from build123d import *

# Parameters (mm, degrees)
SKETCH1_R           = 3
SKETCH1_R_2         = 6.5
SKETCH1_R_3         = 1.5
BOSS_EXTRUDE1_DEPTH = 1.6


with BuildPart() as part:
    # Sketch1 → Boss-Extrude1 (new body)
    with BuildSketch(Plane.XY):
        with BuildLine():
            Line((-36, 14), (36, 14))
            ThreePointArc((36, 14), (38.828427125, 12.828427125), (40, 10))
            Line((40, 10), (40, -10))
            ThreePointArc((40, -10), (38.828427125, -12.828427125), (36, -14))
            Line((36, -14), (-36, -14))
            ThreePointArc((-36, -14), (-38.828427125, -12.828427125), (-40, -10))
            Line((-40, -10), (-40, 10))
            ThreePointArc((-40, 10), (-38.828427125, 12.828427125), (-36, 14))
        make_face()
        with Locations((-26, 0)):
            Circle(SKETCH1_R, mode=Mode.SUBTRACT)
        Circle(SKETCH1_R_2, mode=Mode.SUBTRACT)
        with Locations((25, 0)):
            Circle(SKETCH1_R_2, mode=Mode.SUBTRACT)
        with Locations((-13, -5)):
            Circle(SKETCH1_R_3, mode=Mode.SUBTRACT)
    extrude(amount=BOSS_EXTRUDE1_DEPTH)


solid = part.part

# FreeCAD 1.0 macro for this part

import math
import FreeCAD as App
import Part
import Sketcher
from FreeCAD import Vector
Q = App.Units.Quantity

doc = App.newDocument("Part")
params = doc.addObject("Spreadsheet::Sheet", "Params")
for row, (alias, value) in enumerate([
    ("sketch1_diameter", "3 mm"),
    ("sketch1_diameter2", "13 mm"),
    ("sketch1_diameter3", "6 mm"),
    ("sketch1_radius", "4 mm"),
    ("sketch1_width", "72 mm"),
    ("pad1_length", "1.6 mm"),
], start=1):
    params.set(f"A{row}", alias)
    params.set(f"B{row}", "=" + value)
    params.setAlias(f"B{row}", alias)

body = doc.addObject("PartDesign::Body", "Body")

sketch1 = body.newObject("Sketcher::SketchObject", "Sketch")
sketch1.AttachmentSupport = (doc.getObject("XY_Plane"), [""])
sketch1.MapMode = "FlatFace"
sketch1.addGeometry(Part.LineSegment(Vector(36, 14, 0), Vector(-36, 14, 0)), False)
sketch1.addGeometry(Part.ArcOfCircle(Part.Circle(Vector(-36, 10, 0), Vector(0, 0, 1), 4), math.radians(90), math.radians(180)), False)
sketch1.addGeometry(Part.LineSegment(Vector(-40, 10, 0), Vector(-40, -10, 0)), False)
sketch1.addGeometry(Part.ArcOfCircle(Part.Circle(Vector(-36, -10, 0), Vector(0, 0, 1), 4), math.radians(180), math.radians(270)), False)
sketch1.addGeometry(Part.LineSegment(Vector(-36, -14, 0), Vector(36, -14, 0)), False)
sketch1.addGeometry(Part.ArcOfCircle(Part.Circle(Vector(36, -10, 0), Vector(0, 0, 1), 4), math.radians(-90), math.radians(0)), False)
sketch1.addGeometry(Part.LineSegment(Vector(40, -10, 0), Vector(40, 10, 0)), False)
sketch1.addGeometry(Part.ArcOfCircle(Part.Circle(Vector(36, 10, 0), Vector(0, 0, 1), 4), math.radians(0), math.radians(90)), False)
sketch1.addGeometry(Part.Circle(Vector(-13, -5, 0), Vector(0, 0, 1), 1.5), False)
sketch1.addGeometry(Part.Circle(Vector(25, 0, 0), Vector(0, 0, 1), 6.5), False)
sketch1.addGeometry(Part.Circle(Vector(0, 0, 0), Vector(0, 0, 1), 6.5), False)
sketch1.addGeometry(Part.Circle(Vector(-26, 0, 0), Vector(0, 0, 1), 3), False)
sketch1.addConstraint(Sketcher.Constraint("Tangent", 0, 2, 1, 1))
sketch1.addConstraint(Sketcher.Constraint("Tangent", 1, 2, 2, 1))
sketch1.addConstraint(Sketcher.Constraint("Tangent", 2, 2, 3, 1))
sketch1.addConstraint(Sketcher.Constraint("Tangent", 3, 2, 4, 1))
sketch1.addConstraint(Sketcher.Constraint("Tangent", 4, 2, 5, 1))
sketch1.addConstraint(Sketcher.Constraint("Tangent", 5, 2, 6, 1))
sketch1.addConstraint(Sketcher.Constraint("Tangent", 6, 2, 7, 1))
sketch1.addConstraint(Sketcher.Constraint("Tangent", 7, 2, 0, 1))
sketch1.addConstraint(Sketcher.Constraint("Horizontal", 0))
sketch1.addConstraint(Sketcher.Constraint("Vertical", 2))
sketch1.addConstraint(Sketcher.Constraint("Horizontal", 4))
sketch1.addConstraint(Sketcher.Constraint("Vertical", 6))
sketch1.addConstraint(Sketcher.Constraint("Coincident", 10, 3, -1, 1))
sketch1.addConstraint(Sketcher.Constraint("Equal", 1, 3))
sketch1.addConstraint(Sketcher.Constraint("Equal", 3, 5))
sketch1.addConstraint(Sketcher.Constraint("Equal", 5, 7))
sketch1.addConstraint(Sketcher.Constraint("Equal", 9, 10))
sketch1.addConstraint(Sketcher.Constraint("Symmetric", 1, 3, 5, 3, -1, 1))
sketch1.addConstraint(Sketcher.Constraint("PointOnObject", 9, 3, -1))
sketch1.addConstraint(Sketcher.Constraint("PointOnObject", 11, 3, -1))
sketch1.addConstraint(Sketcher.Constraint("Diameter", 8, Q("3 mm")))
sketch1.addConstraint(Sketcher.Constraint("Diameter", 9, Q("13 mm")))
sketch1.addConstraint(Sketcher.Constraint("Diameter", 11, Q("6 mm")))
sketch1.addConstraint(Sketcher.Constraint("Radius", 1, Q("4 mm")))
sketch1.addConstraint(Sketcher.Constraint("DistanceX", 0, 2, 0, 1, Q("72 mm")))
sketch1.addConstraint(Sketcher.Constraint("DistanceY", 2, 2, 2, 1, Q("20 mm")))
sketch1.addConstraint(Sketcher.Constraint("DistanceX", 8, 3, -1, 1, Q("13 mm")))
sketch1.addConstraint(Sketcher.Constraint("DistanceY", 8, 3, -1, 1, Q("5 mm")))
sketch1.addConstraint(Sketcher.Constraint("DistanceX", -1, 1, 9, 3, Q("25 mm")))
sketch1.addConstraint(Sketcher.Constraint("DistanceX", 11, 3, -1, 1, Q("26 mm")))
sketch1.setExpression("Constraints[20]", "Params.sketch1_diameter")
sketch1.setExpression("Constraints[21]", "Params.sketch1_diameter2")
sketch1.setExpression("Constraints[22]", "Params.sketch1_diameter3")
sketch1.setExpression("Constraints[23]", "Params.sketch1_radius")
sketch1.setExpression("Constraints[24]", "Params.sketch1_width")
pad1 = body.newObject("PartDesign::Pad", "Pad")
pad1.Profile = sketch1
pad1.setExpression("Length", "Params.pad1_length")

doc.recompute()
